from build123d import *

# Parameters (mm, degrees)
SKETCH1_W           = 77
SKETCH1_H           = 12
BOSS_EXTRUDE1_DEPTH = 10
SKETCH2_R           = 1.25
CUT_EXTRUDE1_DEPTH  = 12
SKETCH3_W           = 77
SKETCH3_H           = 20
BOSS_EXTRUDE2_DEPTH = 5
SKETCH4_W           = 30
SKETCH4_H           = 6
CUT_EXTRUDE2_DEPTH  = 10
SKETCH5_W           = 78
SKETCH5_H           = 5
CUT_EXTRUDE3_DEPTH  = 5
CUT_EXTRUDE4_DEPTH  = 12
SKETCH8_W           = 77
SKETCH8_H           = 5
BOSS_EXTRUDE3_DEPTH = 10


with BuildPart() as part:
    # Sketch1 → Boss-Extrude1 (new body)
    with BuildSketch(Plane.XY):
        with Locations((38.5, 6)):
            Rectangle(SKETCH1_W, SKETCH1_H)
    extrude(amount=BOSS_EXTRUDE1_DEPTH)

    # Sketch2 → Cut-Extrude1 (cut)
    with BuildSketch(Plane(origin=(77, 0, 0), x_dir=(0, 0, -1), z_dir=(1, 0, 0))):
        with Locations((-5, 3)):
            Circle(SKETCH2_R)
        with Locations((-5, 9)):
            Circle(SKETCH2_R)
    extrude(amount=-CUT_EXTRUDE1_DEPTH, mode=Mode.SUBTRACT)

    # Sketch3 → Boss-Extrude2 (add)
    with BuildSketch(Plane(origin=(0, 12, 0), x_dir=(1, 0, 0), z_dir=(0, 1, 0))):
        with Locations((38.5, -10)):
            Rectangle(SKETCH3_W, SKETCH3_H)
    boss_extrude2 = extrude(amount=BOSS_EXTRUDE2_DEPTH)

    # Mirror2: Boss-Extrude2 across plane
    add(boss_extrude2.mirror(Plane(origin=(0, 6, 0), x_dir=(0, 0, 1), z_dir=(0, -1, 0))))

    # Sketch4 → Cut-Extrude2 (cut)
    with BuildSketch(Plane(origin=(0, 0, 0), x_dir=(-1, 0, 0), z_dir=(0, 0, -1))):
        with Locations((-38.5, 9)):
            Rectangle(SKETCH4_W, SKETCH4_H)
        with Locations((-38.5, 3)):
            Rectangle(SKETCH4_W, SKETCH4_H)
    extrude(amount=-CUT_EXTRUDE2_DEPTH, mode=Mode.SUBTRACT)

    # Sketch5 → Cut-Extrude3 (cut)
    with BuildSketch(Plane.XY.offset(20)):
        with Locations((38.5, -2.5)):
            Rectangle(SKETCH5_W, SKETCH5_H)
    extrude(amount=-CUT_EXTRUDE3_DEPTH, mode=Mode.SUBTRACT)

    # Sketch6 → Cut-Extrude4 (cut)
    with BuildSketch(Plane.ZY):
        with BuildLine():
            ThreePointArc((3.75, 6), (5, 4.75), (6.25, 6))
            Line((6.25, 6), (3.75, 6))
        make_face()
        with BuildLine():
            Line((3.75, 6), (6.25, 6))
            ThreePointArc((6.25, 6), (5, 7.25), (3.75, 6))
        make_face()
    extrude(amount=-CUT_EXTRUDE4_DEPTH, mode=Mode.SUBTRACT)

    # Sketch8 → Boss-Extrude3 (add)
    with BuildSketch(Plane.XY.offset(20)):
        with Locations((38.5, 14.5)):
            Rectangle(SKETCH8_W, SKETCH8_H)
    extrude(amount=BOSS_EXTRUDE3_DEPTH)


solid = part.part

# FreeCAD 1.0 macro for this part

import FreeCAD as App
import Part
import Sketcher
from FreeCAD import Vector


def add_polygon(sketch, points):
    """Adds a closed chain of lines whose ends are joined by coincident constraints."""
    first, n = sketch.GeometryCount, len(points)
    for a, b in zip(points, points[1:] + points[:1]):
        sketch.addGeometry(Part.LineSegment(App.Vector(*a, 0), App.Vector(*b, 0)), False)
    for i in range(n):
        sketch.addConstraint(Sketcher.Constraint("Coincident", first + i, 2, first + (i + 1) % n, 1))

doc = App.newDocument("Part")
params = doc.addObject("Spreadsheet::Sheet", "Params")
for row, (alias, value) in enumerate([
    ("sketch1_width", "77 mm"),
    ("sketch1_height", "12 mm"),
    ("pad1_length", "10 mm"),
    ("sketch2_diameter", "2.5 mm"),
    ("pocket1_length", "12 mm"),
    ("sketch3_width", "77 mm"),
    ("sketch3_height", "20 mm"),
    ("pad2_length", "5 mm"),
    ("sketch4_width", "30 mm"),
    ("sketch4_height", "12 mm"),
    ("pocket2_length", "10 mm"),
    ("sketch5_width", "78 mm"),
    ("sketch5_height", "5 mm"),
    ("pocket3_length", "5 mm"),
    ("sketch6_diameter", "2.5 mm"),
    ("pocket4_length", "12 mm"),
    ("sketch7_width", "77 mm"),
    ("sketch7_height", "5 mm"),
    ("pad3_length", "10 mm"),
], start=1):
    params.set(f"A{row}", alias)
    params.set(f"B{row}", "=" + value)
    params.setAlias(f"B{row}", alias)

body = doc.addObject("PartDesign::Body", "Body")

sketch1 = body.newObject("Sketcher::SketchObject", "Sketch")
sketch1.AttachmentSupport = (doc.getObject("XY_Plane"), [""])
sketch1.MapMode = "FlatFace"
add_polygon(sketch1, [(0, 12), (0, 0), (77, 0), (77, 12)])
sketch1.addConstraint(Sketcher.Constraint("Vertical", 0))
sketch1.addConstraint(Sketcher.Constraint("Horizontal", 1))
sketch1.addConstraint(Sketcher.Constraint("Vertical", 2))
sketch1.addConstraint(Sketcher.Constraint("Horizontal", 3))
sketch1.addConstraint(Sketcher.Constraint("Coincident", 0, 2, -1, 1))
sketch1.addConstraint(Sketcher.Constraint("DistanceX", 1, 1, 1, 2, 77.0))
sketch1.addConstraint(Sketcher.Constraint("DistanceY", 0, 2, 0, 1, 12.0))
sketch1.setExpression("Constraints[9]", "Params.sketch1_width")
sketch1.setExpression("Constraints[10]", "Params.sketch1_height")
pad1 = body.newObject("PartDesign::Pad", "Pad")
pad1.Profile = sketch1
pad1.setExpression("Length", "Params.pad1_length")

sketch2 = body.newObject("Sketcher::SketchObject", "Sketch001")
sketch2.AttachmentSupport = (doc.getObject("YZ_Plane"), [""])
sketch2.MapMode = "FlatFace"
sketch2.AttachmentOffset = App.Placement(Vector(0, 0, 77), App.Rotation())
sketch2.addGeometry(Part.Circle(Vector(3, 5, 0), Vector(0, 0, 1), 1.25), False)
sketch2.addGeometry(Part.Circle(Vector(9, 5, 0), Vector(0, 0, 1), 1.25), False)
sketch2.addConstraint(Sketcher.Constraint("Equal", 0, 1))
sketch2.addConstraint(Sketcher.Constraint("Horizontal", 0, 3, 1, 3))
sketch2.addConstraint(Sketcher.Constraint("Diameter", 0, 2.5))
sketch2.addConstraint(Sketcher.Constraint("DistanceX", -1, 1, 0, 3, 3.0))
sketch2.addConstraint(Sketcher.Constraint("DistanceY", -1, 1, 0, 3, 5.0))
sketch2.addConstraint(Sketcher.Constraint("DistanceX", -1, 1, 1, 3, 9.0))
sketch2.setExpression("Constraints[2]", "Params.sketch2_diameter")
pocket1 = body.newObject("PartDesign::Pocket", "Pocket")
pocket1.Profile = sketch2
pocket1.setExpression("Length", "Params.pocket1_length")

sketch3 = body.newObject("Sketcher::SketchObject", "Sketch002")
sketch3.AttachmentSupport = (doc.getObject("XZ_Plane"), [""])
sketch3.MapMode = "FlatFace"
sketch3.AttachmentOffset = App.Placement(Vector(0, 0, -12), App.Rotation())
add_polygon(sketch3, [(0, 0), (0, 20), (77, 20), (77, 0)])
sketch3.addConstraint(Sketcher.Constraint("Vertical", 0))
sketch3.addConstraint(Sketcher.Constraint("Horizontal", 1))
sketch3.addConstraint(Sketcher.Constraint("Vertical", 2))
sketch3.addConstraint(Sketcher.Constraint("Horizontal", 3))
sketch3.addConstraint(Sketcher.Constraint("Coincident", 3, 2, -1, 1))
sketch3.addConstraint(Sketcher.Constraint("DistanceX", 1, 1, 1, 2, 77.0))
sketch3.addConstraint(Sketcher.Constraint("DistanceY", 0, 1, 0, 2, 20.0))
sketch3.setExpression("Constraints[9]", "Params.sketch3_width")
sketch3.setExpression("Constraints[10]", "Params.sketch3_height")
pad2 = body.newObject("PartDesign::Pad", "Pad001")
pad2.Profile = sketch3
pad2.setExpression("Length", "Params.pad2_length")
pad2.Reversed = True
doc.recompute()

datumplane = body.newObject("PartDesign::Plane", "DatumPlane")
datumplane.AttachmentSupport = (doc.getObject("XZ_Plane"), [""])
datumplane.MapMode = "FlatFace"
datumplane.AttachmentOffset = App.Placement(Vector(0, 0, -6), App.Rotation())
mirrored = body.newObject("PartDesign::Mirrored", "Mirrored")
mirrored.Originals = [pad2]
mirrored.MirrorPlane = (datumplane, [""])
body.Tip = mirrored

sketch4 = body.newObject("Sketcher::SketchObject", "Sketch003")
sketch4.AttachmentSupport = (doc.getObject("XY_Plane"), [""])
sketch4.MapMode = "FlatFace"
add_polygon(sketch4, [(53.5, 12), (53.5, 0), (23.5, 0), (23.5, 12)])
sketch4.addConstraint(Sketcher.Constraint("Vertical", 0))
sketch4.addConstraint(Sketcher.Constraint("Horizontal", 1))
sketch4.addConstraint(Sketcher.Constraint("Vertical", 2))
sketch4.addConstraint(Sketcher.Constraint("Horizontal", 3))
sketch4.addConstraint(Sketcher.Constraint("PointOnObject", 0, 2, -1))
sketch4.addConstraint(Sketcher.Constraint("DistanceX", 1, 2, 1, 1, 30.0))
sketch4.addConstraint(Sketcher.Constraint("DistanceY", 0, 2, 0, 1, 12.0))
sketch4.addConstraint(Sketcher.Constraint("DistanceX", -1, 1, 0, 2, 53.5))
sketch4.setExpression("Constraints[9]", "Params.sketch4_width")
sketch4.setExpression("Constraints[10]", "Params.sketch4_height")
pocket2 = body.newObject("PartDesign::Pocket", "Pocket001")
pocket2.Profile = sketch4
pocket2.setExpression("Length", "Params.pocket2_length")
pocket2.Reversed = True

sketch5 = body.newObject("Sketcher::SketchObject", "Sketch004")
sketch5.AttachmentSupport = (doc.getObject("XY_Plane"), [""])
sketch5.MapMode = "FlatFace"
sketch5.AttachmentOffset = App.Placement(Vector(0, 0, 20), App.Rotation())
add_polygon(sketch5, [(-0.5, 0), (-0.5, -5), (77.5, -5), (77.5, 0)])
sketch5.addConstraint(Sketcher.Constraint("Vertical", 0))
sketch5.addConstraint(Sketcher.Constraint("Horizontal", 1))
sketch5.addConstraint(Sketcher.Constraint("Vertical", 2))
sketch5.addConstraint(Sketcher.Constraint("Horizontal", 3))
sketch5.addConstraint(Sketcher.Constraint("PointOnObject", 2, 2, -1))
sketch5.addConstraint(Sketcher.Constraint("DistanceX", 1, 1, 1, 2, 78.0))
sketch5.addConstraint(Sketcher.Constraint("DistanceY", 0, 2, 0, 1, 5.0))
sketch5.addConstraint(Sketcher.Constraint("DistanceX", 0, 2, -1, 1, 0.5))
sketch5.setExpression("Constraints[9]", "Params.sketch5_width")
sketch5.setExpression("Constraints[10]", "Params.sketch5_height")
pocket3 = body.newObject("PartDesign::Pocket", "Pocket002")
pocket3.Profile = sketch5
pocket3.setExpression("Length", "Params.pocket3_length")

sketch6 = body.newObject("Sketcher::SketchObject", "Sketch005")
sketch6.AttachmentSupport = (doc.getObject("YZ_Plane"), [""])
sketch6.MapMode = "FlatFace"
sketch6.addGeometry(Part.Circle(Vector(6, 5, 0), Vector(0, 0, 1), 1.25), False)
sketch6.addConstraint(Sketcher.Constraint("Diameter", 0, 2.5))
sketch6.addConstraint(Sketcher.Constraint("DistanceX", -1, 1, 0, 3, 6.0))
sketch6.addConstraint(Sketcher.Constraint("DistanceY", -1, 1, 0, 3, 5.0))
sketch6.setExpression("Constraints[0]", "Params.sketch6_diameter")
pocket4 = body.newObject("PartDesign::Pocket", "Pocket003")
pocket4.Profile = sketch6
pocket4.setExpression("Length", "Params.pocket4_length")
pocket4.Reversed = True

sketch7 = body.newObject("Sketcher::SketchObject", "Sketch006")
sketch7.AttachmentSupport = (doc.getObject("XY_Plane"), [""])
sketch7.MapMode = "FlatFace"
sketch7.AttachmentOffset = App.Placement(Vector(0, 0, 20), App.Rotation())
add_polygon(sketch7, [(0, 17), (0, 12), (77, 12), (77, 17)])
sketch7.addConstraint(Sketcher.Constraint("Vertical", 0))
sketch7.addConstraint(Sketcher.Constraint("Horizontal", 1))
sketch7.addConstraint(Sketcher.Constraint("Vertical", 2))
sketch7.addConstraint(Sketcher.Constraint("Horizontal", 3))
sketch7.addConstraint(Sketcher.Constraint("PointOnObject", 0, 2, -2))
sketch7.addConstraint(Sketcher.Constraint("DistanceX", 1, 1, 1, 2, 77.0))
sketch7.addConstraint(Sketcher.Constraint("DistanceY", 0, 2, 0, 1, 5.0))
sketch7.addConstraint(Sketcher.Constraint("DistanceY", -1, 1, 0, 2, 12.0))
sketch7.setExpression("Constraints[9]", "Params.sketch7_width")
sketch7.setExpression("Constraints[10]", "Params.sketch7_height")
pad3 = body.newObject("PartDesign::Pad", "Pad002")
pad3.Profile = sketch7
pad3.setExpression("Length", "Params.pad3_length")

doc.recompute()
